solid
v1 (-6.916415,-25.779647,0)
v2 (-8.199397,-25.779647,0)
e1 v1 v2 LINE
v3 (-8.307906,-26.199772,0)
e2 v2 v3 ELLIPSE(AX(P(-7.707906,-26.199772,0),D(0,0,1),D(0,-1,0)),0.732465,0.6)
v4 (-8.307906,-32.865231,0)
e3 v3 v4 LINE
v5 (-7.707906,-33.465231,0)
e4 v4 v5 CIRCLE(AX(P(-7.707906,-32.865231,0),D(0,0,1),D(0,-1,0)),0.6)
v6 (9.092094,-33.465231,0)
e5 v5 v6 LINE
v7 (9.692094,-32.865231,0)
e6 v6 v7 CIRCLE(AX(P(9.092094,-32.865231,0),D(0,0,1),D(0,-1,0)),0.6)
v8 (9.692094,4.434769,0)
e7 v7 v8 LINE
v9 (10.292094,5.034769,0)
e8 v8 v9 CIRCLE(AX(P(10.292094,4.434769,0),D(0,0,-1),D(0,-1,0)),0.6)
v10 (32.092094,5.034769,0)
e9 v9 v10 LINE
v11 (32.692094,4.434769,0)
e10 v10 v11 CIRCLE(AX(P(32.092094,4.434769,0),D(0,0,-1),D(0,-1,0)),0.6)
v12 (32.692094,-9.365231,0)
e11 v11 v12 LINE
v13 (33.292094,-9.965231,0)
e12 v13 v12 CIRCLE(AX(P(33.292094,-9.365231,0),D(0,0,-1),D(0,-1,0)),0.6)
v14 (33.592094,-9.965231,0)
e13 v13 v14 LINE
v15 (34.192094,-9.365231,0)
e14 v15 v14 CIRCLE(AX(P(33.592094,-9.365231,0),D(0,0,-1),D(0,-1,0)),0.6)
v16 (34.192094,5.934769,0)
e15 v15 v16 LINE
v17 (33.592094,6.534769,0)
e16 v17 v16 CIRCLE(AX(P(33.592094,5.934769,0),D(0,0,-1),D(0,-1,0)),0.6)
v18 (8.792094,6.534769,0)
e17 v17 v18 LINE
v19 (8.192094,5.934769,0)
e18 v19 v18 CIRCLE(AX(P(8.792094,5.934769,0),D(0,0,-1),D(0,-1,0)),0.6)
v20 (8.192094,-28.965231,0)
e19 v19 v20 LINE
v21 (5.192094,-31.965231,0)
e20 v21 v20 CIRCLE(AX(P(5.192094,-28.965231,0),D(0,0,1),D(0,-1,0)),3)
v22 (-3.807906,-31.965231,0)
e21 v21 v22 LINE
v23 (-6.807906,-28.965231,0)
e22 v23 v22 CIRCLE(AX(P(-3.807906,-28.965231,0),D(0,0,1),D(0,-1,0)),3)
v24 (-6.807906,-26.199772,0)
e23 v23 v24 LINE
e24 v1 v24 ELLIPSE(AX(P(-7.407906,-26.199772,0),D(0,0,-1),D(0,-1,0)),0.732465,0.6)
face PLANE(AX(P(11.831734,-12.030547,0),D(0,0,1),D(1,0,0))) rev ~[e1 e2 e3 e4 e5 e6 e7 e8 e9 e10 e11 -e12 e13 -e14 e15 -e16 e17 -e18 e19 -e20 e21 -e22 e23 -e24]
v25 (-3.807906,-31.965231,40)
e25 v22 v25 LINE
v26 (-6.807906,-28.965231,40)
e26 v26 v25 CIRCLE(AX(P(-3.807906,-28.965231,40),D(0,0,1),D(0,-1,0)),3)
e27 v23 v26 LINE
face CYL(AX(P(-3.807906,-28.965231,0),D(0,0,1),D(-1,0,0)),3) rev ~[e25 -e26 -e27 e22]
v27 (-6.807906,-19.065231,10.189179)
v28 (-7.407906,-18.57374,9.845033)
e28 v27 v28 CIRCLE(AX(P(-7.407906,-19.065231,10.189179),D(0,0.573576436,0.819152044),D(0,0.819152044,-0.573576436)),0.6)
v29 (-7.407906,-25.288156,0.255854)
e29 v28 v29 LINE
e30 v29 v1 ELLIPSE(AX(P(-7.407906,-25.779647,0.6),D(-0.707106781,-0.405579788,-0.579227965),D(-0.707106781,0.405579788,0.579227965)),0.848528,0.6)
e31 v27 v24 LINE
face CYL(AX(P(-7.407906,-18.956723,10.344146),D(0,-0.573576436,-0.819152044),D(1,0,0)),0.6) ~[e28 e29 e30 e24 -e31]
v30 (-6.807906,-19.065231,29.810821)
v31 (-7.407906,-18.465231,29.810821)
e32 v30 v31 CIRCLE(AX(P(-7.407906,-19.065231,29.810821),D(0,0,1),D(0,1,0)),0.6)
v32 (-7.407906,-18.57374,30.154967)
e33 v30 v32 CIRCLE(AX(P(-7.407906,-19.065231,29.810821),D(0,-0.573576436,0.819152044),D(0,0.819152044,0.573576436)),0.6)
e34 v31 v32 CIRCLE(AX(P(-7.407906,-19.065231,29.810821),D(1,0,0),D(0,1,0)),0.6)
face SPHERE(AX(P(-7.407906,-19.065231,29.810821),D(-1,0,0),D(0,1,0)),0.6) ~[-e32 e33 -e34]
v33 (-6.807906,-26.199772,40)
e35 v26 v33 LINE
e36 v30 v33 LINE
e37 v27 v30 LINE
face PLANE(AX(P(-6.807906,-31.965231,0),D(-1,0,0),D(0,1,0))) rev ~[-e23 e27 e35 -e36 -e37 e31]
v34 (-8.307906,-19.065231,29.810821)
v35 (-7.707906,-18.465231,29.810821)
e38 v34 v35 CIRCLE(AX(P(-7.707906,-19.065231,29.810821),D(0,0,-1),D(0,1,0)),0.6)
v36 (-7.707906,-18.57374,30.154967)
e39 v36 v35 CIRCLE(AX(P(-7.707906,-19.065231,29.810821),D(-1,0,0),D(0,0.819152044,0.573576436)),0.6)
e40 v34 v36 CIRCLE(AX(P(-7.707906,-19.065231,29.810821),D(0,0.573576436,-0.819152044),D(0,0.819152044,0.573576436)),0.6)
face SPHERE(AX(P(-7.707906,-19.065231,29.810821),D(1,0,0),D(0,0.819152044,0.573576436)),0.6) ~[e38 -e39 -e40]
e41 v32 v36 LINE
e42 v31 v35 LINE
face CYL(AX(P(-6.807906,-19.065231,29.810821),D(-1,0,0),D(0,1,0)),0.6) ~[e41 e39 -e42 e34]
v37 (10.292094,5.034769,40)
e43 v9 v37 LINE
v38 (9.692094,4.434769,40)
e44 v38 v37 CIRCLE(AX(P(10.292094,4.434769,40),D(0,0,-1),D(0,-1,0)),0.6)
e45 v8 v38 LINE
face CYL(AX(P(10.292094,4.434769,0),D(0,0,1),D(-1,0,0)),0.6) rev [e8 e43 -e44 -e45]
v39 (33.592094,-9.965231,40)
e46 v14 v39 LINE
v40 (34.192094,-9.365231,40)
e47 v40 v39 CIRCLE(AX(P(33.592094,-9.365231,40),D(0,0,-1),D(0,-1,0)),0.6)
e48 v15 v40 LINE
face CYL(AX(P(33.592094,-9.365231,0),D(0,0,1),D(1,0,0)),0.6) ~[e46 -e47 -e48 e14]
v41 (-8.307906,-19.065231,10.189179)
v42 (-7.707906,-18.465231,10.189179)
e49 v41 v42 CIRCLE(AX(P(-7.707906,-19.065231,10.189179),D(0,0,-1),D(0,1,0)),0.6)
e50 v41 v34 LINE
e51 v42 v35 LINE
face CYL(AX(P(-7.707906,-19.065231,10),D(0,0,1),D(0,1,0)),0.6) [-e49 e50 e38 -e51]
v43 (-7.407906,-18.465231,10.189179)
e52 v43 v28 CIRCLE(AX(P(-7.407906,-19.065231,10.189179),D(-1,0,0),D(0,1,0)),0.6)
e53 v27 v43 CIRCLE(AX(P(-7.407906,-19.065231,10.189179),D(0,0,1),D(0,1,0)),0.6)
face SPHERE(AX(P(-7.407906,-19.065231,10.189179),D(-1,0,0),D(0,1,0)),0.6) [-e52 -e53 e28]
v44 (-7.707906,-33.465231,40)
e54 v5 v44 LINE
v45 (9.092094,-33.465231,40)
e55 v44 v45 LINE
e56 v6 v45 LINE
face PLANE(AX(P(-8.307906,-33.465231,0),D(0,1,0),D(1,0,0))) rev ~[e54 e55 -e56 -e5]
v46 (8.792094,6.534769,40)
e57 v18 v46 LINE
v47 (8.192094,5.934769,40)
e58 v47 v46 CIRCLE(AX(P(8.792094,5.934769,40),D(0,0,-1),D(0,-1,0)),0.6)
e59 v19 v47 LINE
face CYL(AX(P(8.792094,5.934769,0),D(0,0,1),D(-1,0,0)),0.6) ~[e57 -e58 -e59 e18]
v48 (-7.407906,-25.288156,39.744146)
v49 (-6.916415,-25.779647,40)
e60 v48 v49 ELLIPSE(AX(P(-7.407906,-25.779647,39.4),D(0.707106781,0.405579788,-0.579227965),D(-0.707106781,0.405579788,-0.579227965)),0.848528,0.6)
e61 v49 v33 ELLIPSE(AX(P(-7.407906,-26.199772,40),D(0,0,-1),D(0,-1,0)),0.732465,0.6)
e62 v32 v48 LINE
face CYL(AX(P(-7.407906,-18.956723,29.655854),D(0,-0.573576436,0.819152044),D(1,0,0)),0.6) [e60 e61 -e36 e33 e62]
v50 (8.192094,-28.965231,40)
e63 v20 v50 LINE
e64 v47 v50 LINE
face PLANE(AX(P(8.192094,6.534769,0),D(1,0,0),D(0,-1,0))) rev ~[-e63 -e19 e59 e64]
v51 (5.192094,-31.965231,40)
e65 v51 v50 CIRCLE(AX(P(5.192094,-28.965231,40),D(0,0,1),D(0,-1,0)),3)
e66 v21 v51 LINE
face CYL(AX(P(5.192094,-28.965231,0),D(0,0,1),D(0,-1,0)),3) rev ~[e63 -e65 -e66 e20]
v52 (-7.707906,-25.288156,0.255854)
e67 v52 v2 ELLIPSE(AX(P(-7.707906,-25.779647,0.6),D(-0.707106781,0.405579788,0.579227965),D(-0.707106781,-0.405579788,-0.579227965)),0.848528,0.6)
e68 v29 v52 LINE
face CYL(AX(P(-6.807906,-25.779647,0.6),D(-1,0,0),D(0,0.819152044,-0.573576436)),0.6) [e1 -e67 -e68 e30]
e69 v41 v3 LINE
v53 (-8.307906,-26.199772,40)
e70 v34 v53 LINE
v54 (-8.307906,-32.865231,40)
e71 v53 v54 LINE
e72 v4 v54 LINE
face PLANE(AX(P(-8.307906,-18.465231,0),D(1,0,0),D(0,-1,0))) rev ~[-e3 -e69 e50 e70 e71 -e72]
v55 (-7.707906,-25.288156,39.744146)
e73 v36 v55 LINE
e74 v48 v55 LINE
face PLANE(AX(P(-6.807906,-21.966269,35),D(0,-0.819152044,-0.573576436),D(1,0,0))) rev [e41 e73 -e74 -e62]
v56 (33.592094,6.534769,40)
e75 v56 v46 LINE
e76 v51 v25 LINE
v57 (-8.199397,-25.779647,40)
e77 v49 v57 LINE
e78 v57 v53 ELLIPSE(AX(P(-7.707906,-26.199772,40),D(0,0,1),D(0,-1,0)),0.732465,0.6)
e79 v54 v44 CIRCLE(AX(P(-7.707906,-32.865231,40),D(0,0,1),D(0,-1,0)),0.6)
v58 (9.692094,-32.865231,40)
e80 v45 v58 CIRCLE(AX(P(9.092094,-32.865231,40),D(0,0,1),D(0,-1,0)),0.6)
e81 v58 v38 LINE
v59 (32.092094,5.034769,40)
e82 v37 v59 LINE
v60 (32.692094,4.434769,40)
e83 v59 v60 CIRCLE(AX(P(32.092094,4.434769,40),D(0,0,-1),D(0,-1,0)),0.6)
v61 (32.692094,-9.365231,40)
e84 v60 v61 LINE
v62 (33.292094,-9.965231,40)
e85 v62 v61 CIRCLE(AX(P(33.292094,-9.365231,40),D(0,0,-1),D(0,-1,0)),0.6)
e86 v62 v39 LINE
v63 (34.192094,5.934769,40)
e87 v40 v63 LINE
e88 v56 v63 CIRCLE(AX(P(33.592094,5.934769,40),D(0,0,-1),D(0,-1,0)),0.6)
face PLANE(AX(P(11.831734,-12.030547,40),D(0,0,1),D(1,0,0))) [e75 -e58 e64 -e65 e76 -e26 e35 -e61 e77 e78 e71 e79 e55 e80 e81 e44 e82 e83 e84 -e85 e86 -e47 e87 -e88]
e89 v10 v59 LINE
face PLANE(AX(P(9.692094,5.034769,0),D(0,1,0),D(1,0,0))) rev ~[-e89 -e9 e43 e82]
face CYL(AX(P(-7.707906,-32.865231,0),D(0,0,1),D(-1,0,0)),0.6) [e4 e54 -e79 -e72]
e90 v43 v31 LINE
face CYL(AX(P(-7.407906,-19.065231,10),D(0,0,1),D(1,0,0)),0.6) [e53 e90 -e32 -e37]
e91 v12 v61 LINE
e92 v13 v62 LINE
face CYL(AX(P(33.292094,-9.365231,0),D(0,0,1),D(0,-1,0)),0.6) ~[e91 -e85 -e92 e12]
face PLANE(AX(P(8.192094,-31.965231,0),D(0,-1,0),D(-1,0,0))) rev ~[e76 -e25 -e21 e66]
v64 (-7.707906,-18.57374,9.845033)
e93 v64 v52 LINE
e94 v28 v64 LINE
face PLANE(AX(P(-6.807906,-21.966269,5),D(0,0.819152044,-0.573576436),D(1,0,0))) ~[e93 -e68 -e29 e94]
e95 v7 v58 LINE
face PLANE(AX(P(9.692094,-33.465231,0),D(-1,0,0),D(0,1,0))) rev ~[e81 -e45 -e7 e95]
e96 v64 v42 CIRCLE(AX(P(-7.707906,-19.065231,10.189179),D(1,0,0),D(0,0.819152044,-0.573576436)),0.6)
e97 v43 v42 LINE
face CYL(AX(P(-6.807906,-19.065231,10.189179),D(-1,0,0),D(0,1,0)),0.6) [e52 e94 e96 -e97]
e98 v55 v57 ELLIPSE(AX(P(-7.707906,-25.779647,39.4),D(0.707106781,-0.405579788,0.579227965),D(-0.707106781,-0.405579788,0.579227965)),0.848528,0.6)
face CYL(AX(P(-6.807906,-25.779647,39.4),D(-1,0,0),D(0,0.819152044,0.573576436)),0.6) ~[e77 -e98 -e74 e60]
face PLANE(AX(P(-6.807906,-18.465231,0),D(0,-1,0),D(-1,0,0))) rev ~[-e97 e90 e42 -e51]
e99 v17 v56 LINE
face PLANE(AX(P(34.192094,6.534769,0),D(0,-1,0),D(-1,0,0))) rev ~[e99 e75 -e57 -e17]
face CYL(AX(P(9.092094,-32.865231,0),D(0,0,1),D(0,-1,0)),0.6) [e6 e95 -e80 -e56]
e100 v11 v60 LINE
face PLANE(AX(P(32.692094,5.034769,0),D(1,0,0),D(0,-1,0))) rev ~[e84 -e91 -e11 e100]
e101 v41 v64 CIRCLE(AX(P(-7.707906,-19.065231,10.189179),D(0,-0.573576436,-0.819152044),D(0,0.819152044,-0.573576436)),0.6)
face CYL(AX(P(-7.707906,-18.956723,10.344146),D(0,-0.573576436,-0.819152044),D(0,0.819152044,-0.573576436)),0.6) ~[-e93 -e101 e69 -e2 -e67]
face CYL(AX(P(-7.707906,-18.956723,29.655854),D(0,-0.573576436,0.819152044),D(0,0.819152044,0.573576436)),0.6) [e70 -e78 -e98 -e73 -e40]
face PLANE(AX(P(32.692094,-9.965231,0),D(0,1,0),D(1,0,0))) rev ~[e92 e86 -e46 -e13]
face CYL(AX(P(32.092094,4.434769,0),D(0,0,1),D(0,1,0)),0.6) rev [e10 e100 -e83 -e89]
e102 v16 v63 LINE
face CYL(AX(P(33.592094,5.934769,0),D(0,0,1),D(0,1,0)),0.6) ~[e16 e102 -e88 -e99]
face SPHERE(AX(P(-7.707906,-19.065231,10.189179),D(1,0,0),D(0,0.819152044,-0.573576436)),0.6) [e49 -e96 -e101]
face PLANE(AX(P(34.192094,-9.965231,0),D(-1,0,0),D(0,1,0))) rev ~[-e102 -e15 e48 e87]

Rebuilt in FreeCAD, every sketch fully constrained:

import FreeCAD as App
import Part
import Sketcher


def edges_at(feature, points):
    """Names of the edges that pass closest to the given points."""
    edges = feature.Shape.Edges
    near = lambda p: min(range(len(edges)), key=lambda i: edges[i].distToShape(Part.Vertex(*p))[0])
    return sorted({f"Edge{near(p) + 1}" for p in points})

doc = App.newDocument("Part")
body = doc.addObject("PartDesign::Body", "Body")

# Sketch on XY plane
sketch1 = body.newObject("Sketcher::SketchObject", "Sketch")
sketch1.AttachmentSupport = (doc.getObject("XY_Plane"), [""])
sketch1.MapMode = "FlatFace"
sketch1.addGeometry(Part.LineSegment(App.Vector(9.7, -33.5, 0), App.Vector(9.7, 5, 0)), False)
sketch1.addGeometry(Part.LineSegment(App.Vector(9.7, 5, 0), App.Vector(32.7, 5, 0)), False)
sketch1.addGeometry(Part.LineSegment(App.Vector(32.7, 5, 0), App.Vector(32.7, -10, 0)), False)
sketch1.addGeometry(Part.LineSegment(App.Vector(32.7, -10, 0), App.Vector(34.2, -10, 0)), False)
sketch1.addGeometry(Part.LineSegment(App.Vector(34.2, -10, 0), App.Vector(34.2, 6.5, 0)), False)
sketch1.addGeometry(Part.LineSegment(App.Vector(34.2, 6.5, 0), App.Vector(8.2, 6.5, 0)), False)
sketch1.addGeometry(Part.LineSegment(App.Vector(8.2, 6.5, 0), App.Vector(8.2, -32, 0)), False)
sketch1.addGeometry(Part.LineSegment(App.Vector(8.2, -32, 0), App.Vector(-6.8, -32, 0)), False)
sketch1.addGeometry(Part.LineSegment(App.Vector(-6.8, -32, 0), App.Vector(-6.8, -18.5, 0)), False)
sketch1.addGeometry(Part.LineSegment(App.Vector(-6.8, -18.5, 0), App.Vector(-8.3, -18.5, 0)), False)
sketch1.addGeometry(Part.LineSegment(App.Vector(-8.3, -18.5, 0), App.Vector(-8.3, -33.5, 0)), False)
sketch1.addGeometry(Part.LineSegment(App.Vector(-8.3, -33.5, 0), App.Vector(9.7, -33.5, 0)), False)
sketch1.addConstraint(Sketcher.Constraint("Coincident", 0, 2, 1, 1))
sketch1.addConstraint(Sketcher.Constraint("Coincident", 1, 2, 2, 1))
sketch1.addConstraint(Sketcher.Constraint("Coincident", 2, 2, 3, 1))
sketch1.addConstraint(Sketcher.Constraint("Coincident", 3, 2, 4, 1))
sketch1.addConstraint(Sketcher.Constraint("Coincident", 4, 2, 5, 1))
sketch1.addConstraint(Sketcher.Constraint("Coincident", 5, 2, 6, 1))
sketch1.addConstraint(Sketcher.Constraint("Coincident", 6, 2, 7, 1))
sketch1.addConstraint(Sketcher.Constraint("Coincident", 7, 2, 8, 1))
sketch1.addConstraint(Sketcher.Constraint("Coincident", 8, 2, 9, 1))
sketch1.addConstraint(Sketcher.Constraint("Coincident", 9, 2, 10, 1))
sketch1.addConstraint(Sketcher.Constraint("Coincident", 10, 2, 11, 1))
sketch1.addConstraint(Sketcher.Constraint("Coincident", 11, 2, 0, 1))
sketch1.addConstraint(Sketcher.Constraint("Vertical", 0))
sketch1.addConstraint(Sketcher.Constraint("Horizontal", 1))
sketch1.addConstraint(Sketcher.Constraint("Vertical", 2))
sketch1.addConstraint(Sketcher.Constraint("Horizontal", 3))
sketch1.addConstraint(Sketcher.Constraint("Vertical", 4))
sketch1.addConstraint(Sketcher.Constraint("Horizontal", 5))
sketch1.addConstraint(Sketcher.Constraint("Vertical", 6))
sketch1.addConstraint(Sketcher.Constraint("Horizontal", 7))
sketch1.addConstraint(Sketcher.Constraint("Vertical", 8))
sketch1.addConstraint(Sketcher.Constraint("Horizontal", 9))
sketch1.addConstraint(Sketcher.Constraint("Vertical", 10))
sketch1.addConstraint(Sketcher.Constraint("Horizontal", 11))
sketch1.addConstraint(Sketcher.Constraint("Equal", 3, 9))
sketch1.addConstraint(Sketcher.Constraint("Equal", 7, 2))
sketch1.addConstraint(Sketcher.Constraint("Equal", 0, 6))
sketch1.addConstraint(Sketcher.Constraint("Equal", 2, 10))
sketch1.addConstraint(Sketcher.Constraint("DistanceX", 1, 1, 1, 2, 23.0))
sketch1.addConstraint(Sketcher.Constraint("DistanceX", 5, 2, 5, 1, 26.0))
sketch1.addConstraint(Sketcher.Constraint("DistanceX", 7, 2, 7, 1, 15.0))
sketch1.addConstraint(Sketcher.Constraint("DistanceX", 3, 1, 3, 2, 1.5))
sketch1.addConstraint(Sketcher.Constraint("DistanceY", 0, 1, 0, 2, 38.5))
sketch1.addConstraint(Sketcher.Constraint("DistanceY", 4, 1, 4, 2, 16.5))
sketch1.addConstraint(Sketcher.Constraint("DistanceY", -1, 1, 0, 2, 5.034769))
sketch1.addConstraint(Sketcher.Constraint("DistanceX", -1, 1, 0, 2, 9.692094))
pad1 = body.newObject("PartDesign::Pad", "Pad")
pad1.Profile = sketch1
pad1.Length = 40
doc.recompute()

chamfer = body.newObject("PartDesign::Chamfer", "Chamfer")
chamfer.Base = (pad1, edges_at(pad1, [(-7.558, -18.465, 40), (-7.558, -18.465, 0)]))
chamfer.ChamferType = "Two distances"
chamfer.Size = 10
chamfer.Size2 = 7.002075
doc.recompute()

fillet = body.newObject("PartDesign::Fillet", "Fillet")
fillet.Base = (chamfer, edges_at(chamfer, [
    (8.192, 6.535, 20),
    (9.692, 5.035, 20),
    (34.192, -9.965, 20),
    (32.692, -9.965, 20),
    (32.692, 5.035, 20),
    (34.192, 6.535, 20),
    (-6.808, -18.465, 20),
    (9.692, -33.465, 20),
    (-8.308, -18.465, 20),
    (-8.308, -33.465, 20),
    (-6.808, -21.966, 5),
    (-7.558, -18.465, 10),
    (-7.558, -25.467, 0),
    (-8.308, -21.966, 5),
    (-6.808, -21.966, 35),
    (-7.558, -18.465, 30),
    (-7.558, -25.467, 40),
    (-8.308, -21.966, 35),
]))
fillet.Radius = 0.6
doc.recompute()

fillet2 = body.newObject("PartDesign::Fillet", "Fillet001")
fillet2.Base = (fillet, edges_at(fillet, [(8.192, -31.965, 20), (-6.808, -31.965, 20)]))
fillet2.Radius = 3

doc.recompute()
